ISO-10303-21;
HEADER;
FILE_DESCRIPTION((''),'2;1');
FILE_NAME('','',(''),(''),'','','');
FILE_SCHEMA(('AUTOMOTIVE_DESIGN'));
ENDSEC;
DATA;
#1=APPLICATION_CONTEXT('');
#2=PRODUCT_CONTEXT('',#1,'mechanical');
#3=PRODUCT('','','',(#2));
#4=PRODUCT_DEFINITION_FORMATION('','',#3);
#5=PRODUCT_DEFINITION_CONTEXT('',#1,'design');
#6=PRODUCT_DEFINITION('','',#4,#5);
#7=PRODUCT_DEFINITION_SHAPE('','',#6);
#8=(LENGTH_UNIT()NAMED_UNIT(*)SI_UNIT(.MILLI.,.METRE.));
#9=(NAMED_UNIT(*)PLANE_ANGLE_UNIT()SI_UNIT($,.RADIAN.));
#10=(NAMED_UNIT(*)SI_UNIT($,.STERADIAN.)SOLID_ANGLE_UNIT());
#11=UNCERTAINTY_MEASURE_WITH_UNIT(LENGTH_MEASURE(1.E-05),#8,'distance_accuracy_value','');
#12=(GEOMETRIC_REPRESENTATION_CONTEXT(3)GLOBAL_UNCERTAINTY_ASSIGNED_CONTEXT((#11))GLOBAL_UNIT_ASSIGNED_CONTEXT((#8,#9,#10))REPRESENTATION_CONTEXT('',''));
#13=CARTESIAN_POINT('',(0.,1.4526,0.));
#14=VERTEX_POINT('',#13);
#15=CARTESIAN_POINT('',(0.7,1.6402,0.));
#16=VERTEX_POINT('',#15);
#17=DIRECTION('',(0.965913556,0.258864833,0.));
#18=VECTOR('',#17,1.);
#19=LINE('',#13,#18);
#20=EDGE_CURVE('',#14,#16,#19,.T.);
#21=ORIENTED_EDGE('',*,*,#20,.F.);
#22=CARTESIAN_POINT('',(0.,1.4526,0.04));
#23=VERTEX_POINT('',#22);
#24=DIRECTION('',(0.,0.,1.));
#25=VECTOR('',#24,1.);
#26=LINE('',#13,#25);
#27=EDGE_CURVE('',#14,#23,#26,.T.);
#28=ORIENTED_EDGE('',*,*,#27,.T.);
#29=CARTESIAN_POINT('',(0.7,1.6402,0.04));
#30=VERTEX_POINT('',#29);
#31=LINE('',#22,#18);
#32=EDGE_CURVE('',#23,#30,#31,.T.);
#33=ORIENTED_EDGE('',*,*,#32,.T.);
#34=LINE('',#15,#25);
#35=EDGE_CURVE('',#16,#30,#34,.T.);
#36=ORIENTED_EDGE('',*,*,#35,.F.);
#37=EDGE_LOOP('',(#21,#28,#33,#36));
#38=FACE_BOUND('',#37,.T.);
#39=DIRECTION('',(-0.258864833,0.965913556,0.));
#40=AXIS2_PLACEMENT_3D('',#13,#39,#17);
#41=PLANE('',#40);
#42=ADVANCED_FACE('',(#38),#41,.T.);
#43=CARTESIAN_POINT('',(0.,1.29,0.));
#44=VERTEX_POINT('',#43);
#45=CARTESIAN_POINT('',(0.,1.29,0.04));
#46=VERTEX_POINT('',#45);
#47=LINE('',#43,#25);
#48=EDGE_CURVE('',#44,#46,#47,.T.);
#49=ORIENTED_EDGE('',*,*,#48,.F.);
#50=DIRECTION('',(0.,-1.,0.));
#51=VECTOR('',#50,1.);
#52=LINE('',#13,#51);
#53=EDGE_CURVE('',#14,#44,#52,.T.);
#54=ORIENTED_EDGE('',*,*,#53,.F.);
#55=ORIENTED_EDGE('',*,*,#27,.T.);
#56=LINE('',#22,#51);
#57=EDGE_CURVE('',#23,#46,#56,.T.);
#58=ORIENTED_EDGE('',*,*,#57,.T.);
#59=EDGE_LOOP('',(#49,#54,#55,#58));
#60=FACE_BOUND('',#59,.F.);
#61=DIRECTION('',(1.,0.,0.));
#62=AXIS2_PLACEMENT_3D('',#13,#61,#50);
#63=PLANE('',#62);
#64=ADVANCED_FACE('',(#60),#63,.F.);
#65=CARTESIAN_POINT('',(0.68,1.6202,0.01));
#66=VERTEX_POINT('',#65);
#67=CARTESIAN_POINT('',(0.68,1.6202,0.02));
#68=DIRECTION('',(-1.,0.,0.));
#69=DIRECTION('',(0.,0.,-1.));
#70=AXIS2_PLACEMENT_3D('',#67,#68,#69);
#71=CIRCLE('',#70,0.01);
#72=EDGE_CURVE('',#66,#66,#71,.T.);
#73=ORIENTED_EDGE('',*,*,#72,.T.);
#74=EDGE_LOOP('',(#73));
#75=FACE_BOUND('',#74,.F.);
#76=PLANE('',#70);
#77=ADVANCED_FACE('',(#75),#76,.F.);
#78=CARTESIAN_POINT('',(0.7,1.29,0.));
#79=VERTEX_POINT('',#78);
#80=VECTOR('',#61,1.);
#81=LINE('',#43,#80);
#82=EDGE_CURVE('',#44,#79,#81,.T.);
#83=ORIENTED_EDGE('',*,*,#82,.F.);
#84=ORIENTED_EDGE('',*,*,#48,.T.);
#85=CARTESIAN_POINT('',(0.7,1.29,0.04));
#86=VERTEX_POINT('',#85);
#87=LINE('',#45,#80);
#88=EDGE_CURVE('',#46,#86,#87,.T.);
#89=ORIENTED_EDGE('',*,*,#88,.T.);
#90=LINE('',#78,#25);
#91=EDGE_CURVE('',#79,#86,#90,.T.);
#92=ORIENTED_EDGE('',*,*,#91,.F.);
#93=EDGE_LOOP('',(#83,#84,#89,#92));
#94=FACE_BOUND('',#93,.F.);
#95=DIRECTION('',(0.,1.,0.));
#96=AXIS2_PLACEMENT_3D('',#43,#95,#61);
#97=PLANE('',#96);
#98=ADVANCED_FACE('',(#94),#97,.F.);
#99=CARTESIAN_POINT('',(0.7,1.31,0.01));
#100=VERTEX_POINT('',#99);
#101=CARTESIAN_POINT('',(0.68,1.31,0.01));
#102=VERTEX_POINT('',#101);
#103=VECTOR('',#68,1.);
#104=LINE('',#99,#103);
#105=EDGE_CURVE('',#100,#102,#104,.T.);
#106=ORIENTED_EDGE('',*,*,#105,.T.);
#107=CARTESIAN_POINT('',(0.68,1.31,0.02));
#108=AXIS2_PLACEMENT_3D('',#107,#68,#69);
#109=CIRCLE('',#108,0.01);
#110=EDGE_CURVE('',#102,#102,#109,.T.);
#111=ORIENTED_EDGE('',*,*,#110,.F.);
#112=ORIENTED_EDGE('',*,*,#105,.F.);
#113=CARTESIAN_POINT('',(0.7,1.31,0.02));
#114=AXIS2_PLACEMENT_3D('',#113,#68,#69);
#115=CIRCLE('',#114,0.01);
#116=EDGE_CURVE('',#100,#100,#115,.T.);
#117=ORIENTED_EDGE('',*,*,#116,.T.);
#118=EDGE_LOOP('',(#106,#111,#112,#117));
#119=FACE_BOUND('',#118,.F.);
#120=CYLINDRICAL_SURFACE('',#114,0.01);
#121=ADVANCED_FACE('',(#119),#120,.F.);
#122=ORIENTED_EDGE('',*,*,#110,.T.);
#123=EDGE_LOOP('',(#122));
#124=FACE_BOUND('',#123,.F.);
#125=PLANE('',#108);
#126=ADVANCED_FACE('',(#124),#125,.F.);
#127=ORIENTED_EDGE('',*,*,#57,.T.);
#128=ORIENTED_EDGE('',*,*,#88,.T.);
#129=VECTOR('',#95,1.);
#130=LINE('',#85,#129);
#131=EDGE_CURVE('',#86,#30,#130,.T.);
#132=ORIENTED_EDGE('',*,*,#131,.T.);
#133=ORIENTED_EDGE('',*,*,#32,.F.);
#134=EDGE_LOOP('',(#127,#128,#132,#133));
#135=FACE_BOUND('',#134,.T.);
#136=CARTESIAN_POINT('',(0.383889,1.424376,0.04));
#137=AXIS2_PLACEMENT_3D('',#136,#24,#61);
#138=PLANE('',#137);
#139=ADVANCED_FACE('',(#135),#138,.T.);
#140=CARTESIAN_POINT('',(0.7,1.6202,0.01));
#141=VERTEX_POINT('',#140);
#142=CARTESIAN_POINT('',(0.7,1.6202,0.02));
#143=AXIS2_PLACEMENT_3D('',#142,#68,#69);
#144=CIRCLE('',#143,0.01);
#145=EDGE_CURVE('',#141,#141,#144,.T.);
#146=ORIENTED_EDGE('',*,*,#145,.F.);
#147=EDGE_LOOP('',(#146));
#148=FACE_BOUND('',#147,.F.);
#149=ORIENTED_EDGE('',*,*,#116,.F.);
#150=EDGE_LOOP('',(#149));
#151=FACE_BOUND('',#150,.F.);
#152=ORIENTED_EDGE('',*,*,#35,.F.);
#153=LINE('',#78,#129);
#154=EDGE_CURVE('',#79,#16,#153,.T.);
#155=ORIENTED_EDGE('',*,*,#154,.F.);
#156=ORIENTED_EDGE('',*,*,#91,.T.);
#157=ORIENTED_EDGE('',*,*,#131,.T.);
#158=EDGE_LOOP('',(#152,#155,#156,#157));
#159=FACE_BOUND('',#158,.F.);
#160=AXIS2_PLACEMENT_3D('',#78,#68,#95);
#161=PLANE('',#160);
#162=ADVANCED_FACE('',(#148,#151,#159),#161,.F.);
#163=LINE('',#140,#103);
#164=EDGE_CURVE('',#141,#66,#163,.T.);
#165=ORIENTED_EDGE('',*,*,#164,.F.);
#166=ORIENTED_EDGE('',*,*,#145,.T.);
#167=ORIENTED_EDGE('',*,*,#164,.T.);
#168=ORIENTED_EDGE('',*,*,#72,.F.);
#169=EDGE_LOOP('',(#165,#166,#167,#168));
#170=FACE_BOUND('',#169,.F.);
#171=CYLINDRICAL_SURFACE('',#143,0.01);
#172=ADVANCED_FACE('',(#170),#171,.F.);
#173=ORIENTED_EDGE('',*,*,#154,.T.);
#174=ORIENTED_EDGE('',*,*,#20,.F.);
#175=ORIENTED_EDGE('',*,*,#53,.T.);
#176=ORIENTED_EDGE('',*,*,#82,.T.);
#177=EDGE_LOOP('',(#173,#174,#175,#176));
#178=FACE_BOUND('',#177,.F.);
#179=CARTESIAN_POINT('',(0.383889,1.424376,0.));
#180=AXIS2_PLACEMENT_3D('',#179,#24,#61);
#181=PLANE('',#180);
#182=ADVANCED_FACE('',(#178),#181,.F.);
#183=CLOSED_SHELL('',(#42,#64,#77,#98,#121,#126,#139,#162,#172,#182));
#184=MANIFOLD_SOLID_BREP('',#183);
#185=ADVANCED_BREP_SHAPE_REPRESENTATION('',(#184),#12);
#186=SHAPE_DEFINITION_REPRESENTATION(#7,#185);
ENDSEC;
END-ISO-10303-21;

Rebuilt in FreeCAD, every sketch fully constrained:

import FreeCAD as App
import Part
import Sketcher

doc = App.newDocument("Part")
body = doc.addObject("PartDesign::Body", "Body")

# Sketch on XY plane
sketch1 = body.newObject("Sketcher::SketchObject", "Sketch")
sketch1.AttachmentSupport = (doc.getObject("XY_Plane"), [""])
sketch1.MapMode = "FlatFace"
sketch1.addGeometry([
    Part.LineSegment(App.Vector(0, 1.29, 0), App.Vector(0.7, 1.29, 0)),
    Part.LineSegment(App.Vector(0.7, 1.29, 0), App.Vector(0.7, 1.64, 0)),
    Part.LineSegment(App.Vector(0.7, 1.64, 0), App.Vector(0, 1.45, 0)),
    Part.LineSegment(App.Vector(0, 1.45, 0), App.Vector(0, 1.29, 0)),
], False)
sketch1.addConstraint([
    Sketcher.Constraint("Coincident", 0, 2, 1, 1),
    Sketcher.Constraint("Coincident", 1, 2, 2, 1),
    Sketcher.Constraint("Coincident", 2, 2, 3, 1),
    Sketcher.Constraint("Coincident", 3, 2, 0, 1),
    Sketcher.Constraint("Horizontal", 0),
    Sketcher.Constraint("Vertical", 1),
    Sketcher.Constraint("Vertical", 3),
    Sketcher.Constraint("PointOnObject", 2, 2, -2),
    Sketcher.Constraint("DistanceX", 0, 1, 0, 2, 0.7),
    Sketcher.Constraint("DistanceY", -1, 1, 0, 2, 1.29),
    Sketcher.Constraint("DistanceY", 1, 1, 1, 2, 0.3502),
    Sketcher.Constraint("DistanceY", 3, 2, 3, 1, 0.1626),
])
pad1 = body.newObject("PartDesign::Pad", "Pad")
pad1.Profile = sketch1
pad1.Length = 0.04

# Sketch on YZ plane
sketch2 = body.newObject("Sketcher::SketchObject", "Sketch001")
sketch2.AttachmentSupport = (doc.getObject("YZ_Plane"), [""])
sketch2.MapMode = "FlatFace"
sketch2.AttachmentOffset = App.Placement(App.Vector(0, 0, 0.7), App.Rotation())
sketch2.addGeometry(Part.Circle(App.Vector(1.62, 0.02, 0), App.Vector(0, 0, 1), 0.01), False)
sketch2.addConstraint([
    Sketcher.Constraint("Diameter", 0, 0.02),
    Sketcher.Constraint("DistanceY", -1, 1, 0, 3, 0.02),
    Sketcher.Constraint("DistanceX", -1, 1, 0, 3, 1.6202),
])
doc.recompute()
hole = body.newObject("PartDesign::Hole", "Hole")
hole.Profile = sketch2
hole.ThreadType = "None"
hole.Diameter = 0.02
hole.DepthType = "Dimension"
hole.Depth = 0.02
hole.DrillPoint = "Flat"

# Sketch on YZ plane
sketch3 = body.newObject("Sketcher::SketchObject", "Sketch002")
sketch3.AttachmentSupport = (doc.getObject("YZ_Plane"), [""])
sketch3.MapMode = "FlatFace"
sketch3.AttachmentOffset = App.Placement(App.Vector(0, 0, 0.7), App.Rotation())
sketch3.addGeometry(Part.Circle(App.Vector(1.31, 0.02, 0), App.Vector(0, 0, 1), 0.01), False)
sketch3.addConstraint([
    Sketcher.Constraint("Diameter", 0, 0.02),
    Sketcher.Constraint("DistanceX", -1, 1, 0, 3, 1.31),
    Sketcher.Constraint("DistanceY", -1, 1, 0, 3, 0.02),
])
doc.recompute()
hole2 = body.newObject("PartDesign::Hole", "Hole001")
hole2.Profile = sketch3
hole2.ThreadType = "None"
hole2.Diameter = 0.02
hole2.DepthType = "Dimension"
hole2.Depth = 0.02
hole2.DrillPoint = "Flat"

doc.recompute()
